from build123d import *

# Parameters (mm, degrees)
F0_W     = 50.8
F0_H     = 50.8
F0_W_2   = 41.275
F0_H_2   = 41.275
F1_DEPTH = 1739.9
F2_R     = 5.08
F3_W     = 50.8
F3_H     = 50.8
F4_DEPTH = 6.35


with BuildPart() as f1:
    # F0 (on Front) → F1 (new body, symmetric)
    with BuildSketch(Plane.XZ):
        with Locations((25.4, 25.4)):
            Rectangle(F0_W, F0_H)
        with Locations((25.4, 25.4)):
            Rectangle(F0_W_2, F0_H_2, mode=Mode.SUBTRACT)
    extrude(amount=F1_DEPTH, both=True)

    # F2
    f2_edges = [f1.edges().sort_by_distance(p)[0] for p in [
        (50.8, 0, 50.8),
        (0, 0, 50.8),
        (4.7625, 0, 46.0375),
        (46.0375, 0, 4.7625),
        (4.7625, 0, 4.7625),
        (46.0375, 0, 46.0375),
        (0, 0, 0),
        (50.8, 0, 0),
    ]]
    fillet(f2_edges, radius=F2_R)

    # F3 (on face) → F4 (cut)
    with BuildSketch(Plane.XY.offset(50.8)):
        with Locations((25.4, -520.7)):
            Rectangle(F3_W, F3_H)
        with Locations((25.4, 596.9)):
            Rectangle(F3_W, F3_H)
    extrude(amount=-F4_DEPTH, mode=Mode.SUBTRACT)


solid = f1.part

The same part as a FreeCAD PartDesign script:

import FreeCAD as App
import Part
import Sketcher

V = App.Vector
Q = App.Units.Quantity


def edges_at(feature, points):
    """Names of the edges that pass closest to the given points."""
    edges = feature.Shape.Edges
    near = lambda p: min(range(len(edges)), key=lambda i: edges[i].distToShape(Part.Vertex(*p))[0])
    return sorted({f"Edge{near(p) + 1}" for p in points})

doc = App.newDocument("Part")
params = doc.addObject("Spreadsheet::Sheet", "Params")
for row, (alias, value) in enumerate([
    ("sketch1_width", "2 in"),
    ("sketch1_width2", "1.625 in"),
    ("pad1_length", "137 in"),
    ("fillet_radius", "0.2 in"),
    ("sketch2_width", "2 in"),
    ("pocket1_length", "0.25 in"),
], start=1):
    params.set(f"A{row}", alias)
    params.set(f"B{row}", "=" + value)
    params.setAlias(f"B{row}", alias)

body = doc.addObject("PartDesign::Body", "Body")

sketch1 = body.newObject("Sketcher::SketchObject", "Sketch")
sketch1.AttachmentSupport = (doc.getObject("XZ_Plane"), [""])
sketch1.MapMode = "FlatFace"
sketch1.addGeometry([
    Part.LineSegment(V(0, 51, 0), V(0, 0, 0)),
    Part.LineSegment(V(0, 0, 0), V(51, 0, 0)),
    Part.LineSegment(V(51, 0, 0), V(51, 51, 0)),
    Part.LineSegment(V(51, 51, 0), V(0, 51, 0)),
    Part.LineSegment(V(46, 5, 0), V(5, 5, 0)),
    Part.LineSegment(V(5, 5, 0), V(5, 46, 0)),
    Part.LineSegment(V(5, 46, 0), V(46, 46, 0)),
    Part.LineSegment(V(46, 46, 0), V(46, 5, 0)),
], False)
sketch1.addConstraint([
    Sketcher.Constraint("Coincident", 0, 2, 1, 1),
    Sketcher.Constraint("Coincident", 1, 2, 2, 1),
    Sketcher.Constraint("Coincident", 2, 2, 3, 1),
    Sketcher.Constraint("Coincident", 3, 2, 0, 1),
    Sketcher.Constraint("Coincident", 4, 2, 5, 1),
    Sketcher.Constraint("Coincident", 5, 2, 6, 1),
    Sketcher.Constraint("Coincident", 6, 2, 7, 1),
    Sketcher.Constraint("Coincident", 7, 2, 4, 1),
    Sketcher.Constraint("Vertical", 0),
    Sketcher.Constraint("Horizontal", 1),
    Sketcher.Constraint("Vertical", 2),
    Sketcher.Constraint("Horizontal", 3),
    Sketcher.Constraint("Horizontal", 4),
    Sketcher.Constraint("Vertical", 5),
    Sketcher.Constraint("Horizontal", 6),
    Sketcher.Constraint("Vertical", 7),
    Sketcher.Constraint("Coincident", 0, 2, -1, 1),
    Sketcher.Constraint("Equal", 3, 0),
    Sketcher.Constraint("Equal", 6, 5),
    Sketcher.Constraint("DistanceX", 1, 1, 1, 2, Q("2 in")),
    Sketcher.Constraint("DistanceX", 4, 2, 4, 1, Q("1.625 in")),
    Sketcher.Constraint("DistanceX", -1, 1, 4, 2, Q("0.1875 in")),
    Sketcher.Constraint("DistanceY", -1, 1, 4, 2, Q("0.1875 in")),
])
sketch1.setExpression("Constraints[19]", "Params.sketch1_width")
sketch1.setExpression("Constraints[20]", "Params.sketch1_width2")
pad1 = body.newObject("PartDesign::Pad", "Pad")
pad1.Profile = sketch1
pad1.setExpression("Length", "Params.pad1_length")
pad1.Midplane = True
doc.recompute()

fillet = body.newObject("PartDesign::Fillet", "Fillet")
fillet.Base = (pad1, edges_at(pad1, [
    (50.8, 0, 50.8),
    (0, 0, 50.8),
    (4.763, 0, 46.038),
    (46.038, 0, 4.763),
    (4.763, 0, 4.763),
    (46.038, 0, 46.038),
    (0, 0, 0),
    (50.8, 0, 0),
]))
fillet.setExpression("Radius", "Params.fillet_radius")

sketch2 = body.newObject("Sketcher::SketchObject", "Sketch001")
sketch2.AttachmentSupport = (doc.getObject("XY_Plane"), [""])
sketch2.MapMode = "FlatFace"
sketch2.AttachmentOffset = App.Placement(V(0, 0, 2 * 25.4), App.Rotation())
sketch2.addGeometry([
    Part.LineSegment(V(0, -495, 0), V(0, -546, 0)),
    Part.LineSegment(V(0, -546, 0), V(51, -546, 0)),
    Part.LineSegment(V(51, -546, 0), V(51, -495, 0)),
    Part.LineSegment(V(51, -495, 0), V(0, -495, 0)),
    Part.LineSegment(V(0, 622, 0), V(0, 572, 0)),
    Part.LineSegment(V(0, 572, 0), V(51, 572, 0)),
    Part.LineSegment(V(51, 572, 0), V(51, 622, 0)),
    Part.LineSegment(V(51, 622, 0), V(0, 622, 0)),
], False)
sketch2.addConstraint([
    Sketcher.Constraint("Coincident", 0, 2, 1, 1),
    Sketcher.Constraint("Coincident", 1, 2, 2, 1),
    Sketcher.Constraint("Coincident", 2, 2, 3, 1),
    Sketcher.Constraint("Coincident", 3, 2, 0, 1),
    Sketcher.Constraint("Coincident", 4, 2, 5, 1),
    Sketcher.Constraint("Coincident", 5, 2, 6, 1),
    Sketcher.Constraint("Coincident", 6, 2, 7, 1),
    Sketcher.Constraint("Coincident", 7, 2, 4, 1),
    Sketcher.Constraint("Vertical", 0),
    Sketcher.Constraint("Horizontal", 1),
    Sketcher.Constraint("Vertical", 2),
    Sketcher.Constraint("Horizontal", 3),
    Sketcher.Constraint("Vertical", 4),
    Sketcher.Constraint("Horizontal", 5),
    Sketcher.Constraint("Vertical", 6),
    Sketcher.Constraint("Horizontal", 7),
    Sketcher.Constraint("PointOnObject", 0, 2, -2),
    Sketcher.Constraint("PointOnObject", 4, 2, -2),
    Sketcher.Constraint("Vertical", 2, 2, 5, 2),
    Sketcher.Constraint("Equal", 7, 0),
    Sketcher.Constraint("Equal", 2, 4),
    Sketcher.Constraint("DistanceX", 1, 1, 1, 2, Q("2 in")),
    Sketcher.Constraint("DistanceY", 3, 2, 4, 2, Q("42 in")),
    Sketcher.Constraint("DistanceY", 0, 2, -1, 1, Q("21.5 in")),
])
sketch2.setExpression("Constraints[21]", "Params.sketch2_width")
pocket1 = body.newObject("PartDesign::Pocket", "Pocket")
pocket1.Profile = sketch2
pocket1.setExpression("Length", "Params.pocket1_length")

doc.recompute()
